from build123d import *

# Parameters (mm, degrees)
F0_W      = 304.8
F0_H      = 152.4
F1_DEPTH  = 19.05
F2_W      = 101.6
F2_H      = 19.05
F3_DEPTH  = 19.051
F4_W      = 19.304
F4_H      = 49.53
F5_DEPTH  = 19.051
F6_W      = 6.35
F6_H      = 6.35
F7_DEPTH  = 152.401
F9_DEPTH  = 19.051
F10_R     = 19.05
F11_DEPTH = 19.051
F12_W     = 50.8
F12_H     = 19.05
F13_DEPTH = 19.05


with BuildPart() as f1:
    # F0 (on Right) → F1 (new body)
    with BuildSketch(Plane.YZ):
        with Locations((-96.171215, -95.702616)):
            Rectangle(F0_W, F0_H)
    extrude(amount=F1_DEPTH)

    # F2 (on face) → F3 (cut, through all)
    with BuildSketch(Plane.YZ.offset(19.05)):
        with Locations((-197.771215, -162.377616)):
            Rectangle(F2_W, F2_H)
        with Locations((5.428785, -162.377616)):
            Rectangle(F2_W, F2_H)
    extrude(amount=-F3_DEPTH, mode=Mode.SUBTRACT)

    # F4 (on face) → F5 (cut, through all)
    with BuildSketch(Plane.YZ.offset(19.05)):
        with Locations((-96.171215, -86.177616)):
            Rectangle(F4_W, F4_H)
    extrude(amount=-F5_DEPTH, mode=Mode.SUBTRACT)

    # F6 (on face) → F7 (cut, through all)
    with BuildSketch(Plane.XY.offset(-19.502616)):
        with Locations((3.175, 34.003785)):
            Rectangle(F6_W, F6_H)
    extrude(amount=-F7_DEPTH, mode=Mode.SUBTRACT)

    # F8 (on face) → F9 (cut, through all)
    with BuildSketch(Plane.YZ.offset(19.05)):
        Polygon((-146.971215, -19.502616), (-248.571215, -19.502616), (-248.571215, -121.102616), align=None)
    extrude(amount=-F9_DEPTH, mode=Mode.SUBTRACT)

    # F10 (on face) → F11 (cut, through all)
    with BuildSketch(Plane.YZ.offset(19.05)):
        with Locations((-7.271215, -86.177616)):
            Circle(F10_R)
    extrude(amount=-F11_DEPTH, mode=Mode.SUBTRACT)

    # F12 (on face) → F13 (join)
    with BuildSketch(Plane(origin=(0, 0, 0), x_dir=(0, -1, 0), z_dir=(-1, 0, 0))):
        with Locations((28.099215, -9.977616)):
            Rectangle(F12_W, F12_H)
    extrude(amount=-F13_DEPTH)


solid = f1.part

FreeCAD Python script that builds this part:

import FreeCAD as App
import Part
import Sketcher

V = App.Vector
Q = App.Units.Quantity


def add_polygon(sketch, points):
    """Adds a closed chain of lines whose ends are joined by coincident constraints."""
    first, n = sketch.GeometryCount, len(points)
    for a, b in zip(points, points[1:] + points[:1]):
        sketch.addGeometry(Part.LineSegment(App.Vector(*a, 0), App.Vector(*b, 0)), False)
    for i in range(n):
        sketch.addConstraint(Sketcher.Constraint("Coincident", first + i, 2, first + (i + 1) % n, 1))

doc = App.newDocument("Part")
body = doc.addObject("PartDesign::Body", "Body")

# Sketch on YZ plane
sketch1 = body.newObject("Sketcher::SketchObject", "Sketch")
sketch1.AttachmentSupport = (doc.getObject("YZ_Plane"), [""])
sketch1.MapMode = "FlatFace"
add_polygon(sketch1, [(-249, -20), (-249, -172), (56, -172), (56, -20)])  # lines 0-3
sketch1.addConstraint([
    Sketcher.Constraint("Vertical", 0),
    Sketcher.Constraint("Horizontal", 1),
    Sketcher.Constraint("Vertical", 2),
    Sketcher.Constraint("Horizontal", 3),
    Sketcher.Constraint("DistanceX", 1, 1, 1, 2, Q("12 in")),
    Sketcher.Constraint("DistanceY", 0, 2, 0, 1, Q("6 in")),
    Sketcher.Constraint("DistanceX", 0, 2, -1, 1, 248.571215),
    Sketcher.Constraint("DistanceY", 0, 2, -1, 1, 171.902616),
])
pad1 = body.newObject("PartDesign::Pad", "Pad")
pad1.Profile = sketch1
pad1.Length = Q("0.75 in")

# Sketch on YZ plane
sketch2 = body.newObject("Sketcher::SketchObject", "Sketch001")
sketch2.AttachmentSupport = (doc.getObject("YZ_Plane"), [""])
sketch2.MapMode = "FlatFace"
sketch2.AttachmentOffset = App.Placement(V(0, 0, 0.75 * 25.4), App.Rotation())
add_polygon(sketch2, [(-249, -153), (-249, -172), (-147, -172), (-147, -153)])  # lines 0-3
add_polygon(sketch2, [(-45, -153), (-45, -172), (56, -172), (56, -153)])  # lines 4-7
sketch2.addConstraint([
    Sketcher.Constraint("Vertical", 0),
    Sketcher.Constraint("Horizontal", 1),
    Sketcher.Constraint("Vertical", 2),
    Sketcher.Constraint("Horizontal", 3),
    Sketcher.Constraint("Vertical", 4),
    Sketcher.Constraint("Horizontal", 5),
    Sketcher.Constraint("Vertical", 6),
    Sketcher.Constraint("Horizontal", 7),
    Sketcher.Constraint("Horizontal", 1, 2, 4, 2),
    Sketcher.Constraint("Horizontal", 3, 2, 6, 2),
    Sketcher.Constraint("Equal", 3, 5),
    Sketcher.Constraint("DistanceX", 1, 1, 1, 2, Q("4 in")),
    Sketcher.Constraint("DistanceX", 1, 2, 4, 2, Q("4 in")),
    Sketcher.Constraint("DistanceY", 0, 2, 0, 1, Q("0.75 in")),
    Sketcher.Constraint("DistanceX", 0, 2, -1, 1, 248.571215),
    Sketcher.Constraint("DistanceY", 0, 2, -1, 1, 171.902616),
])
pocket1 = body.newObject("PartDesign::Pocket", "Pocket")
pocket1.Profile = sketch2
pocket1.Type = "ThroughAll"

# Sketch on YZ plane
sketch3 = body.newObject("Sketcher::SketchObject", "Sketch002")
sketch3.AttachmentSupport = (doc.getObject("YZ_Plane"), [""])
sketch3.MapMode = "FlatFace"
sketch3.AttachmentOffset = App.Placement(V(0, 0, 0.75 * 25.4), App.Rotation())
add_polygon(sketch3, [(-106, -61), (-106, -111), (-87, -111), (-87, -61)])  # lines 0-3
sketch3.addConstraint([
    Sketcher.Constraint("Vertical", 0),
    Sketcher.Constraint("Horizontal", 1),
    Sketcher.Constraint("Vertical", 2),
    Sketcher.Constraint("Horizontal", 3),
    Sketcher.Constraint("DistanceX", 1, 1, 1, 2, Q("0.76 in")),
    Sketcher.Constraint("DistanceY", 0, 2, 0, 1, Q("1.95 in")),
    Sketcher.Constraint("DistanceX", 0, 2, -1, 1, 105.823215),
    Sketcher.Constraint("DistanceY", 0, 2, -1, 1, 110.942616),
])
pocket2 = body.newObject("PartDesign::Pocket", "Pocket001")
pocket2.Profile = sketch3
pocket2.Type = "ThroughAll"

# Sketch on XY plane
sketch4 = body.newObject("Sketcher::SketchObject", "Sketch003")
sketch4.AttachmentSupport = (doc.getObject("XY_Plane"), [""])
sketch4.MapMode = "FlatFace"
sketch4.AttachmentOffset = App.Placement(V(0, 0, -19.502616), App.Rotation())
add_polygon(sketch4, [(0, 37), (0, 31), (6, 31), (6, 37)])  # lines 0-3
sketch4.addConstraint([
    Sketcher.Constraint("Vertical", 0),
    Sketcher.Constraint("Horizontal", 1),
    Sketcher.Constraint("Vertical", 2),
    Sketcher.Constraint("Horizontal", 3),
    Sketcher.Constraint("PointOnObject", 0, 2, -2),
    Sketcher.Constraint("Equal", 3, 0),
    Sketcher.Constraint("DistanceX", 1, 1, 1, 2, Q("0.25 in")),
    Sketcher.Constraint("DistanceY", -1, 1, 0, 2, 30.828785),
])
pocket3 = body.newObject("PartDesign::Pocket", "Pocket002")
pocket3.Profile = sketch4
pocket3.Type = "ThroughAll"

# Sketch on YZ plane
sketch5 = body.newObject("Sketcher::SketchObject", "Sketch004")
sketch5.AttachmentSupport = (doc.getObject("YZ_Plane"), [""])
sketch5.MapMode = "FlatFace"
sketch5.AttachmentOffset = App.Placement(V(0, 0, 0.75 * 25.4), App.Rotation())
add_polygon(sketch5, [(-147, -20), (-249, -20), (-249, -121)])  # lines 0-2
sketch5.addConstraint([
    Sketcher.Constraint("Horizontal", 0),
    Sketcher.Constraint("Vertical", 1),
    Sketcher.Constraint("Equal", 0, 1),
    Sketcher.Constraint("DistanceX", 0, 2, 0, 1, Q("4 in")),
    Sketcher.Constraint("DistanceX", 0, 2, -1, 1, 248.571215),
    Sketcher.Constraint("DistanceY", 0, 2, -1, 1, 19.502616),
])
pocket4 = body.newObject("PartDesign::Pocket", "Pocket003")
pocket4.Profile = sketch5
pocket4.Type = "ThroughAll"

# Sketch on YZ plane
sketch6 = body.newObject("Sketcher::SketchObject", "Sketch005")
sketch6.AttachmentSupport = (doc.getObject("YZ_Plane"), [""])
sketch6.MapMode = "FlatFace"
sketch6.AttachmentOffset = App.Placement(V(0, 0, 0.75 * 25.4), App.Rotation())
sketch6.addGeometry(Part.Circle(V(-7, -86, 0), V(0, 0, 1), 19), False)
sketch6.addConstraint([
    Sketcher.Constraint("Diameter", 0, Q("1.5 in")),
    Sketcher.Constraint("DistanceX", 0, 3, -1, 1, 7.271215),
    Sketcher.Constraint("DistanceY", 0, 3, -1, 1, 86.177616),
])
pocket5 = body.newObject("PartDesign::Pocket", "Pocket004")
pocket5.Profile = sketch6
pocket5.Type = "ThroughAll"

# Sketch on YZ plane
sketch7 = body.newObject("Sketcher::SketchObject", "Sketch006")
sketch7.AttachmentSupport = (doc.getObject("YZ_Plane"), [""])
sketch7.MapMode = "FlatFace"
add_polygon(sketch7, [(-3, 0), (-3, -20), (-53, -20), (-53, 0)])  # lines 0-3
sketch7.addConstraint([
    Sketcher.Constraint("Vertical", 0),
    Sketcher.Constraint("Horizontal", 1),
    Sketcher.Constraint("Vertical", 2),
    Sketcher.Constraint("Horizontal", 3),
    Sketcher.Constraint("DistanceX", 1, 2, 1, 1, Q("2 in")),
    Sketcher.Constraint("DistanceY", 0, 2, 0, 1, Q("0.75 in")),
    Sketcher.Constraint("DistanceX", 0, 2, -1, 1, 2.699215),
    Sketcher.Constraint("DistanceY", 0, 2, -1, 1, 19.502616),
])
pad2 = body.newObject("PartDesign::Pad", "Pad001")
pad2.Profile = sketch7
pad2.Length = Q("0.75 in")

doc.recompute()
